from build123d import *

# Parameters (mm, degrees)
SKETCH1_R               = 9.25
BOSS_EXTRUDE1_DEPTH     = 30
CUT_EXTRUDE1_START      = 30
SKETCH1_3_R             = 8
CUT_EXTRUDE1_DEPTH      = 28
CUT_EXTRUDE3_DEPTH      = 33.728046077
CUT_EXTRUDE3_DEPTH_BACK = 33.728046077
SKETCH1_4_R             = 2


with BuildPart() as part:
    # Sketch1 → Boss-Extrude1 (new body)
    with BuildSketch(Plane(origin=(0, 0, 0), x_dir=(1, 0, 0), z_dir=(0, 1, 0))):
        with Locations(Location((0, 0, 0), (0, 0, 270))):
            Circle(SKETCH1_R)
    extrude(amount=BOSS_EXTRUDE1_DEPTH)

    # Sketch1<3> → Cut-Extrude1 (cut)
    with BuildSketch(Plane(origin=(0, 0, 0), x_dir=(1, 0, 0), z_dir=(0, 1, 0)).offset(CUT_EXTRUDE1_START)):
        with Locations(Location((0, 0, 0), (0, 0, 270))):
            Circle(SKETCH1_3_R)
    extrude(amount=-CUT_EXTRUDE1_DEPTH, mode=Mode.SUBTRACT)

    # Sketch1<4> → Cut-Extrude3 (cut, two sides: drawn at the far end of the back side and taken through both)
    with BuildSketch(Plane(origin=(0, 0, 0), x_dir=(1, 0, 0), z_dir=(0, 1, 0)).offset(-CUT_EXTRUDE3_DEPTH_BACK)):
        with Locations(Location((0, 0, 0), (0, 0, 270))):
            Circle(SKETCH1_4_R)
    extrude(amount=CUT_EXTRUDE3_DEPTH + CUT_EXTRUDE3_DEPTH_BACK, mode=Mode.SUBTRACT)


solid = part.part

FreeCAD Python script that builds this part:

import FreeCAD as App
import Part
import Sketcher
from FreeCAD import Vector

doc = App.newDocument("Part")
body = doc.addObject("PartDesign::Body", "Body")

# Sketch on XZ plane
sketch1 = body.newObject("Sketcher::SketchObject", "Sketch")
sketch1.AttachmentSupport = (doc.getObject("XZ_Plane"), [""])
sketch1.MapMode = "FlatFace"
sketch1.addGeometry(Part.Circle(Vector(0, 0, 0), Vector(0, 0, 1), 9.25), False)
sketch1.addConstraint([
    Sketcher.Constraint("Coincident", 0, 3, -1, 1),
    Sketcher.Constraint("Diameter", 0, 18.5),
])
pad1 = body.newObject("PartDesign::Pad", "Pad")
pad1.Profile = sketch1
pad1.Length = 30
pad1.Reversed = True

# Sketch on XZ plane
sketch2 = body.newObject("Sketcher::SketchObject", "Sketch001")
sketch2.AttachmentSupport = (doc.getObject("XZ_Plane"), [""])
sketch2.MapMode = "FlatFace"
sketch2.AttachmentOffset = App.Placement(Vector(0, 0, -30), App.Rotation())
sketch2.addGeometry(Part.Circle(Vector(0, 0, 0), Vector(0, 0, 1), 8), False)
sketch2.addConstraint([
    Sketcher.Constraint("Coincident", 0, 3, -1, 1),
    Sketcher.Constraint("Diameter", 0, 16.0),
])
pocket1 = body.newObject("PartDesign::Pocket", "Pocket")
pocket1.Profile = sketch2
pocket1.Length = 28
pocket1.Reversed = True

# Sketch on XZ plane
sketch3 = body.newObject("Sketcher::SketchObject", "Sketch002")
sketch3.AttachmentSupport = (doc.getObject("XZ_Plane"), [""])
sketch3.MapMode = "FlatFace"
sketch3.addGeometry(Part.Circle(Vector(0, 0, 0), Vector(0, 0, 1), 2), False)
sketch3.addConstraint([
    Sketcher.Constraint("Coincident", 0, 3, -1, 1),
    Sketcher.Constraint("Diameter", 0, 4.0),
])
pocket2 = body.newObject("PartDesign::Pocket", "Pocket001")
pocket2.Profile = sketch3
pocket2.Type = "ThroughAll"
pocket2.Midplane = True

doc.recompute()
